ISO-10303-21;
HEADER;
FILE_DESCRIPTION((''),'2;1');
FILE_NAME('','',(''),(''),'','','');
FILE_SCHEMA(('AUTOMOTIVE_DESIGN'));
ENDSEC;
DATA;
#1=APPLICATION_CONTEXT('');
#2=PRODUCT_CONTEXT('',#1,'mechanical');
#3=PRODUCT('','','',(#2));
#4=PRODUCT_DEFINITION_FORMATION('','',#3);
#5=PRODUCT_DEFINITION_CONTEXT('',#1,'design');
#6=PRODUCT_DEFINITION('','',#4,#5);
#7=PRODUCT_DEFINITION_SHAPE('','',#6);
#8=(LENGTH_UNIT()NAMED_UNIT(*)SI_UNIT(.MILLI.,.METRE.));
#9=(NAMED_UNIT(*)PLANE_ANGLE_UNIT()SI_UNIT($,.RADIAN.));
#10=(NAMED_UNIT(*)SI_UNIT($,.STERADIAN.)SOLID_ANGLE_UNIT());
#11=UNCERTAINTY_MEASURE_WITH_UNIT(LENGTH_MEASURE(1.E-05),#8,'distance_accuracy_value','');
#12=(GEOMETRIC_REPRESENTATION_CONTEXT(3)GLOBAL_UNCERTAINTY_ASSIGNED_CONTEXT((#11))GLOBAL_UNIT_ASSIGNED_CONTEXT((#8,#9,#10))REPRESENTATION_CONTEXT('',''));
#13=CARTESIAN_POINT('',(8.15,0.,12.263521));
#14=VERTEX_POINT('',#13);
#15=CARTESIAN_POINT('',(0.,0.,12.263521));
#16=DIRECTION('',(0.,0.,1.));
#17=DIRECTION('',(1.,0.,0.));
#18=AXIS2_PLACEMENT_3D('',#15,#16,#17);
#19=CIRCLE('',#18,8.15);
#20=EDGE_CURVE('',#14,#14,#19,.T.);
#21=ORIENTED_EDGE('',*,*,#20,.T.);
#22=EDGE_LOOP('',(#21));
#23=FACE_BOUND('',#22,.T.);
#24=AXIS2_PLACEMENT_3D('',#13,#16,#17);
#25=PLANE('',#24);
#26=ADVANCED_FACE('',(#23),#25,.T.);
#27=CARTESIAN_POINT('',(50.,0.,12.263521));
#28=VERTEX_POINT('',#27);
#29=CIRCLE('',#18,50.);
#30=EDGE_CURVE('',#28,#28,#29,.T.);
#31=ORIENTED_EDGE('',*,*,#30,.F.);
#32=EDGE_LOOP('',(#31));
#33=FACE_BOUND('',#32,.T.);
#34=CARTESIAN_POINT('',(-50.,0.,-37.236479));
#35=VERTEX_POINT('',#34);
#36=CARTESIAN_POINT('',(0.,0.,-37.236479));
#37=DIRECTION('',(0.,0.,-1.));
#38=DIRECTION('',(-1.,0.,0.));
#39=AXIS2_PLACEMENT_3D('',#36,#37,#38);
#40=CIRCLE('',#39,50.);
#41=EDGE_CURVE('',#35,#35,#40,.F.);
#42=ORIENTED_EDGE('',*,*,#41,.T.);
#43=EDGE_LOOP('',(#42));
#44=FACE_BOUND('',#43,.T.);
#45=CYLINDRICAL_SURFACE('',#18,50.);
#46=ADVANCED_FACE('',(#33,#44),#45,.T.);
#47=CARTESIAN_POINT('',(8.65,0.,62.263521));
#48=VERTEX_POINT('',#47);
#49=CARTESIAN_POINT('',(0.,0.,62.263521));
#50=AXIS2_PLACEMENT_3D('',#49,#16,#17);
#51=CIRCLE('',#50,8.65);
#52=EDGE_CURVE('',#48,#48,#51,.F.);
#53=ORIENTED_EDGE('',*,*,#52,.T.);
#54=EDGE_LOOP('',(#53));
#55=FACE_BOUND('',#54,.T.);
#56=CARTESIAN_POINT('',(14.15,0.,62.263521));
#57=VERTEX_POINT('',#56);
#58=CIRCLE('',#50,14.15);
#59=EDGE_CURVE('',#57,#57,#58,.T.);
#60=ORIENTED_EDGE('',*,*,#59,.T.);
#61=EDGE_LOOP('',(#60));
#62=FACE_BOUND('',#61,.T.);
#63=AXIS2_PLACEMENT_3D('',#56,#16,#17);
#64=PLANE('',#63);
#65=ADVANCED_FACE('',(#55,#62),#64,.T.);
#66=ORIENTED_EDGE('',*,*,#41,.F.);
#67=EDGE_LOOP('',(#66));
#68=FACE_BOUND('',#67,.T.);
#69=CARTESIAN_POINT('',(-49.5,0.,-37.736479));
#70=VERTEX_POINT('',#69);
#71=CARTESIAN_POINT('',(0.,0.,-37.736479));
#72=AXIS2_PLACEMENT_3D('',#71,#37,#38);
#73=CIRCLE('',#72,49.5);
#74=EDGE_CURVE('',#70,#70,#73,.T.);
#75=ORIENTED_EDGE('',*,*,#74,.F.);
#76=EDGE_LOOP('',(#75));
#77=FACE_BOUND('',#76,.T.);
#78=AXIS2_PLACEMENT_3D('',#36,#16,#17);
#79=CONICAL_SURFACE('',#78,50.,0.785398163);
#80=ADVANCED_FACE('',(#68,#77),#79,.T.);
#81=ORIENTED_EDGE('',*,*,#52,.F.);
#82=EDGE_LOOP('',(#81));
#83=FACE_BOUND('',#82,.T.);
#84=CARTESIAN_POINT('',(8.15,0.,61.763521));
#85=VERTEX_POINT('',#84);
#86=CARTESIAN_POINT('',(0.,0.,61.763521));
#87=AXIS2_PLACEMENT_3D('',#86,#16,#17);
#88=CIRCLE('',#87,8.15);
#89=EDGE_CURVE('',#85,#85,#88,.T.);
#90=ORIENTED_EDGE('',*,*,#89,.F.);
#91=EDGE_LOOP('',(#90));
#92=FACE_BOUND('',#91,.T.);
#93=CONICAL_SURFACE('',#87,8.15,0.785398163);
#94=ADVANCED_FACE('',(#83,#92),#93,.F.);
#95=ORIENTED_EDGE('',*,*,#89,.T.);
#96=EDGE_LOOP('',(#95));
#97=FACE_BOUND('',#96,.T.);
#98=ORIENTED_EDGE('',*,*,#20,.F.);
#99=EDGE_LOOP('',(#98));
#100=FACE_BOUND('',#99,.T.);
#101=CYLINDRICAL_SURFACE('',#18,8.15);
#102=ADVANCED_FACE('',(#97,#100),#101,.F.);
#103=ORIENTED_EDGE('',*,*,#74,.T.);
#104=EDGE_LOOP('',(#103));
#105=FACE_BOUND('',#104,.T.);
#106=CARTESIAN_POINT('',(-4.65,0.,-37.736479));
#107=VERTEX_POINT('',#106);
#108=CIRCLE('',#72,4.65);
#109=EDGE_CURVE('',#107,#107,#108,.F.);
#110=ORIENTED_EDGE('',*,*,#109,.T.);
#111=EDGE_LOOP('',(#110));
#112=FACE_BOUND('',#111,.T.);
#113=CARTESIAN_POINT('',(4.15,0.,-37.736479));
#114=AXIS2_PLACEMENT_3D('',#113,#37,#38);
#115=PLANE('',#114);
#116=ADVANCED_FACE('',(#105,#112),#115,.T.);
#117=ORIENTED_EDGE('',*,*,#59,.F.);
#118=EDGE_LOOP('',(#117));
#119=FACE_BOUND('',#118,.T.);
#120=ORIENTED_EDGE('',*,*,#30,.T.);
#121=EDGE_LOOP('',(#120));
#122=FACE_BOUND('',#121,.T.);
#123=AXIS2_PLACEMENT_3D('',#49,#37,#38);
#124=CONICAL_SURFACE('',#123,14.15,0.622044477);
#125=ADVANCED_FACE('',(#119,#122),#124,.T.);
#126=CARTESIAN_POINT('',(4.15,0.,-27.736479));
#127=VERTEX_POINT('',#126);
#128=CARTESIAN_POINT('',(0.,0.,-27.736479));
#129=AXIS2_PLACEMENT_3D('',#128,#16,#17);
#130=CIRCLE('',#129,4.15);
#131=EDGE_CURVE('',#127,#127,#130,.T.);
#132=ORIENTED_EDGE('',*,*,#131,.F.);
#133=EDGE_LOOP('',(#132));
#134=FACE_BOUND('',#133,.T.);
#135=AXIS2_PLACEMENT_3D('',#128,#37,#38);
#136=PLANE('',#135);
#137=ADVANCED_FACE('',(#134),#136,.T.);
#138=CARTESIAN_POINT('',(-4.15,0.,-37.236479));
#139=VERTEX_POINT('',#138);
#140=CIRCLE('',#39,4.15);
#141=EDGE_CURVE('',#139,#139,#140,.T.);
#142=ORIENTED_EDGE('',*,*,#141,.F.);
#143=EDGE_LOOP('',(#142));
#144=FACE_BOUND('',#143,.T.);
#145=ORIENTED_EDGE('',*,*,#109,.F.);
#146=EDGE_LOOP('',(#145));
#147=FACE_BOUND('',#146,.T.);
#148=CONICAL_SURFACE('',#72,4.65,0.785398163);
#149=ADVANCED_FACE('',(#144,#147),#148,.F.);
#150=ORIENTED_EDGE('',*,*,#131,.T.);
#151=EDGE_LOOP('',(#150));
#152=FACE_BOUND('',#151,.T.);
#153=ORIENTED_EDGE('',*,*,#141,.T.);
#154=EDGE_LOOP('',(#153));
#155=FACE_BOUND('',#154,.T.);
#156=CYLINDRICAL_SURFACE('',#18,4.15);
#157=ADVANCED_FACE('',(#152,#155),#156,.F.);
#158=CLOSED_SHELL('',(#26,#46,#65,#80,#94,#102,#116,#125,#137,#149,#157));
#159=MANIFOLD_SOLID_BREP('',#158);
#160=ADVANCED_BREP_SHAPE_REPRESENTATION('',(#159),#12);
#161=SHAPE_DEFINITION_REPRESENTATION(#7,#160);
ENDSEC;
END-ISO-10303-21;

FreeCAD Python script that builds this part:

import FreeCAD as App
import Part
import Sketcher

V = App.Vector


def edges_at(feature, points):
    """Names of the edges that pass closest to the given points."""
    edges = feature.Shape.Edges
    near = lambda p: min(range(len(edges)), key=lambda i: edges[i].distToShape(Part.Vertex(*p))[0])
    return sorted({f"Edge{near(p) + 1}" for p in points})

doc = App.newDocument("Part")
body = doc.addObject("PartDesign::Body", "Body")

# Sketch on XZ plane
sketch1 = doc.addObject("Sketcher::SketchObject", "Sketch")
body.addObject(sketch1)
sketch1.AttachmentSupport = (doc.XZ_Plane, [""])
sketch1.MapMode = "FlatFace"
sketch1.addGeometry(Part.LineSegment(V(4.2, -27.7, 0), V(0, -27.7, 0)), False)
sketch1.addGeometry(Part.LineSegment(V(0, -27.7, 0), V(0, 12.3, 0)), False)
sketch1.addGeometry(Part.LineSegment(V(0, 12.3, 0), V(8.2, 12.3, 0)), False)
sketch1.addGeometry(Part.LineSegment(V(8.2, 12.3, 0), V(8.2, 62.3, 0)), False)
sketch1.addGeometry(Part.LineSegment(V(8.2, 62.3, 0), V(14.2, 62.3, 0)), False)
sketch1.addGeometry(Part.LineSegment(V(14.2, 62.3, 0), V(50, 12.3, 0)), False)
sketch1.addGeometry(Part.LineSegment(V(50, 12.3, 0), V(50, -37.7, 0)), False)
sketch1.addGeometry(Part.LineSegment(V(50, -37.7, 0), V(4.2, -37.7, 0)), False)
sketch1.addGeometry(Part.LineSegment(V(4.2, -37.7, 0), V(4.2, -27.7, 0)), False)
sketch1.addConstraint(Sketcher.Constraint("Coincident", 0, 2, 1, 1))
sketch1.addConstraint(Sketcher.Constraint("Coincident", 1, 2, 2, 1))
sketch1.addConstraint(Sketcher.Constraint("Coincident", 2, 2, 3, 1))
sketch1.addConstraint(Sketcher.Constraint("Coincident", 3, 2, 4, 1))
sketch1.addConstraint(Sketcher.Constraint("Coincident", 4, 2, 5, 1))
sketch1.addConstraint(Sketcher.Constraint("Coincident", 5, 2, 6, 1))
sketch1.addConstraint(Sketcher.Constraint("Coincident", 6, 2, 7, 1))
sketch1.addConstraint(Sketcher.Constraint("Coincident", 7, 2, 8, 1))
sketch1.addConstraint(Sketcher.Constraint("Coincident", 8, 2, 0, 1))
sketch1.addConstraint(Sketcher.Constraint("Horizontal", 0))
sketch1.addConstraint(Sketcher.Constraint("Vertical", 1))
sketch1.addConstraint(Sketcher.Constraint("Horizontal", 2))
sketch1.addConstraint(Sketcher.Constraint("Vertical", 3))
sketch1.addConstraint(Sketcher.Constraint("Horizontal", 4))
sketch1.addConstraint(Sketcher.Constraint("Vertical", 6))
sketch1.addConstraint(Sketcher.Constraint("Horizontal", 7))
sketch1.addConstraint(Sketcher.Constraint("Vertical", 8))
sketch1.addConstraint(Sketcher.Constraint("PointOnObject", 0, 2, -2))
sketch1.addConstraint(Sketcher.Constraint("Horizontal", 2, 2, 5, 2))
sketch1.addConstraint(Sketcher.Constraint("Equal", 3, 6))
sketch1.addConstraint(Sketcher.Constraint("DistanceX", 4, 1, 4, 2, 6.0))
sketch1.addConstraint(Sketcher.Constraint("DistanceY", 1, 1, 1, 2, 40.0))
sketch1.addConstraint(Sketcher.Constraint("DistanceY", 3, 1, 3, 2, 50.0))
sketch1.addConstraint(Sketcher.Constraint("DistanceX", -1, 1, 5, 2, 50.0))
sketch1.addConstraint(Sketcher.Constraint("DistanceX", 7, 2, 2, 2, 4.0))
sketch1.addConstraint(Sketcher.Constraint("DistanceX", 0, 2, 0, 1, 4.15))
sketch1.addConstraint(Sketcher.Constraint("DistanceY", 0, 2, -1, 1, 27.736479))
revolution = doc.addObject("PartDesign::Revolution", "Revolution")
body.addObject(revolution)
revolution.Profile = sketch1
revolution.ReferenceAxis = (sketch1, ["V_Axis"])
revolution.Angle = 360
doc.recompute()

chamfer = doc.addObject("PartDesign::Chamfer", "Chamfer")
body.addObject(chamfer)
chamfer.Base = (revolution, edges_at(revolution, [(-8.15, 0, 62.264), (-50, 0, -37.736), (-4.15, 0, -37.736)]))
chamfer.Size = 0.5

doc.recompute()
